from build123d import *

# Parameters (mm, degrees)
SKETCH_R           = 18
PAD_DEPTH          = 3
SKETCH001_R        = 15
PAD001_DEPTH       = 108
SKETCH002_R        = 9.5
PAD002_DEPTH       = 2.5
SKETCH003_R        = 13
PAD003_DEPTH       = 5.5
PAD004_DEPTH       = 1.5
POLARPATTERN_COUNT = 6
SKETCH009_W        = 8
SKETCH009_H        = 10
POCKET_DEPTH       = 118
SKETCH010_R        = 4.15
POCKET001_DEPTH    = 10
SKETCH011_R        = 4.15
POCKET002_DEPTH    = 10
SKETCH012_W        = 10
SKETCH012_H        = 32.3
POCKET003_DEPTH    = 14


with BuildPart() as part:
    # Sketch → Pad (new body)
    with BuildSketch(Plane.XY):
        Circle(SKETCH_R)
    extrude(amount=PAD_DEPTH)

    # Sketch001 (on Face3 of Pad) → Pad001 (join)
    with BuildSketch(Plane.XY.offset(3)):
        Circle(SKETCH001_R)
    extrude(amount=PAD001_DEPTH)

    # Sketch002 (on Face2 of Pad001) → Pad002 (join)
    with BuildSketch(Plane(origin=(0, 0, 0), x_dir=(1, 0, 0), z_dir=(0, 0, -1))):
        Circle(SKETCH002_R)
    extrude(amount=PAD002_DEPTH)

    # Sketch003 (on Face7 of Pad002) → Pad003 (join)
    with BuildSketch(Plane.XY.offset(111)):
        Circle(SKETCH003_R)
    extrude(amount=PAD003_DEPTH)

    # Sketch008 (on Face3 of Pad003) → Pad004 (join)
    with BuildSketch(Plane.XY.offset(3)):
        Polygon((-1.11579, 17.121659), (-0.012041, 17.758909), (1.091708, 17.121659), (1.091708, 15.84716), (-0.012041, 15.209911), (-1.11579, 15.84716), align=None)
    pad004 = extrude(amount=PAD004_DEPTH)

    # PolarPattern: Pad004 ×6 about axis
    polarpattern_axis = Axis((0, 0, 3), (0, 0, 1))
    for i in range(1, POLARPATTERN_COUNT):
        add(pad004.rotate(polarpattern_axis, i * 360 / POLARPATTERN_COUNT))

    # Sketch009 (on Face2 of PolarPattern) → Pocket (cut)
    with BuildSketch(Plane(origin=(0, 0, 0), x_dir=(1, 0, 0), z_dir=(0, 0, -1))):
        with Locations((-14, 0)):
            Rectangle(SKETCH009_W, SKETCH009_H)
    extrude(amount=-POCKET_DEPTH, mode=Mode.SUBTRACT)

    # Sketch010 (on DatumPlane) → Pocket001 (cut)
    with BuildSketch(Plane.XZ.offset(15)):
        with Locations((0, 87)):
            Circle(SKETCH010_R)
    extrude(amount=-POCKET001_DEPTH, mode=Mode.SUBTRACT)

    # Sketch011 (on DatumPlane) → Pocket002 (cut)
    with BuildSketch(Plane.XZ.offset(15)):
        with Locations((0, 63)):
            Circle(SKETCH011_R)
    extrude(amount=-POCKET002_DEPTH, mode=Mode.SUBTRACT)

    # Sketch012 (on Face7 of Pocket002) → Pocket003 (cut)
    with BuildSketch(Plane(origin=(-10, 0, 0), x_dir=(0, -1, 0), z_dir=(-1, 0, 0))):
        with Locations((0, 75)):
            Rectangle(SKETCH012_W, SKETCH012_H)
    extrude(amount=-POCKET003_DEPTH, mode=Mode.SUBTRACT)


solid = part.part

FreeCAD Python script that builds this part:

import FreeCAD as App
import Part
import Sketcher
from FreeCAD import Vector
Q = App.Units.Quantity


def add_polygon(sketch, points):
    """Adds a closed chain of lines whose ends are joined by coincident constraints."""
    first, n = sketch.GeometryCount, len(points)
    for a, b in zip(points, points[1:] + points[:1]):
        sketch.addGeometry(Part.LineSegment(App.Vector(*a, 0), App.Vector(*b, 0)), False)
    for i in range(n):
        sketch.addConstraint(Sketcher.Constraint("Coincident", first + i, 2, first + (i + 1) % n, 1))

doc = App.newDocument("Part")
body = doc.addObject("PartDesign::Body", "Body")

sketch1 = body.newObject("Sketcher::SketchObject", "Sketch")
sketch1.AttachmentSupport = (doc.getObject("XY_Plane"), [""])
sketch1.MapMode = "FlatFace"
sketch1.addGeometry(Part.Circle(Vector(0, 0, 0), Vector(0, 0, 1), 18), False)
sketch1.addConstraint(Sketcher.Constraint("Coincident", 0, 3, -1, 1))
sketch1.addConstraint(Sketcher.Constraint("Diameter", 0, Q("36 mm")))
pad1 = body.newObject("PartDesign::Pad", "Pad")
pad1.Profile = sketch1
pad1.Length = 3

sketch2 = body.newObject("Sketcher::SketchObject", "Sketch001")
sketch2.AttachmentSupport = (doc.getObject("XY_Plane"), [""])
sketch2.MapMode = "FlatFace"
sketch2.AttachmentOffset = App.Placement(Vector(0, 0, 3), App.Rotation())
sketch2.addGeometry(Part.Circle(Vector(0, 0, 0), Vector(0, 0, 1), 15), False)
sketch2.addConstraint(Sketcher.Constraint("Coincident", 0, 3, -1, 1))
sketch2.addConstraint(Sketcher.Constraint("Diameter", 0, Q("30 mm")))
pad2 = body.newObject("PartDesign::Pad", "Pad001")
pad2.Profile = sketch2
pad2.Length = 108

sketch3 = body.newObject("Sketcher::SketchObject", "Sketch002")
sketch3.AttachmentSupport = (doc.getObject("XY_Plane"), [""])
sketch3.MapMode = "FlatFace"
sketch3.addGeometry(Part.Circle(Vector(0, 0, 0), Vector(0, 0, 1), 10), False)
sketch3.addConstraint(Sketcher.Constraint("Coincident", 0, 3, -1, 1))
sketch3.addConstraint(Sketcher.Constraint("Diameter", 0, Q("19 mm")))
pad3 = body.newObject("PartDesign::Pad", "Pad002")
pad3.Profile = sketch3
pad3.Length = 2.5
pad3.Reversed = True

sketch4 = body.newObject("Sketcher::SketchObject", "Sketch003")
sketch4.AttachmentSupport = (doc.getObject("XY_Plane"), [""])
sketch4.MapMode = "FlatFace"
sketch4.AttachmentOffset = App.Placement(Vector(0, 0, 111), App.Rotation())
sketch4.addGeometry(Part.Circle(Vector(0, 0, 0), Vector(0, 0, 1), 13), False)
sketch4.addConstraint(Sketcher.Constraint("Coincident", 0, 3, -1, 1))
sketch4.addConstraint(Sketcher.Constraint("Diameter", 0, Q("26 mm")))
pad4 = body.newObject("PartDesign::Pad", "Pad003")
pad4.Profile = sketch4
pad4.Length = 5.5

sketch5 = body.newObject("Sketcher::SketchObject", "Sketch004")
sketch5.AttachmentSupport = (doc.getObject("XY_Plane"), [""])
sketch5.MapMode = "FlatFace"
sketch5.AttachmentOffset = App.Placement(Vector(0, 0, 3), App.Rotation())
add_polygon(sketch5, [(0, 17.8), (-1.1, 17.1), (-1.1, 15.8), (0, 15.2), (1.1, 15.8), (1.1, 17.1)])
sketch5.addConstraint(Sketcher.Constraint("Vertical", 1))
sketch5.addConstraint(Sketcher.Constraint("Vertical", 4))
sketch5.addConstraint(Sketcher.Constraint("Parallel", 0, 3))
sketch5.addConstraint(Sketcher.Constraint("Parallel", 2, 5))
sketch5.addConstraint(Sketcher.Constraint("Horizontal", 1, 2, 3, 2))
sketch5.addConstraint(Sketcher.Constraint("Horizontal", 0, 2, 4, 2))
sketch5.addConstraint(Sketcher.Constraint("Vertical", 2, 2, 5, 2))
sketch5.addConstraint(Sketcher.Constraint("Angle", 0, Q("-149.999992 deg")))
sketch5.addConstraint(Sketcher.Constraint("DistanceY", 1, 2, 1, 1, Q("1.274499 mm")))
sketch5.addConstraint(Sketcher.Constraint("Distance", 0, Q("1.2745 mm")))
sketch5.addConstraint(Sketcher.Constraint("DistanceX", 0, 2, -1, 1, Q("1.11579 mm")))
sketch5.addConstraint(Sketcher.Constraint("DistanceY", -1, 1, 0, 2, Q("17.121659 mm")))
pad5 = body.newObject("PartDesign::Pad", "Pad004")
pad5.Profile = sketch5
pad5.Length = 1.5
doc.recompute()

polarpattern = body.newObject("PartDesign::PolarPattern", "PolarPattern")
polarpattern.Originals = [pad5]
polarpattern.Axis = (doc.getObject("Z_Axis"), [""])
polarpattern.Angle = 360
polarpattern.Occurrences = 6
body.Tip = polarpattern

sketch6 = body.newObject("Sketcher::SketchObject", "Sketch005")
sketch6.AttachmentSupport = (doc.getObject("XY_Plane"), [""])
sketch6.MapMode = "FlatFace"
add_polygon(sketch6, [(-18, -5), (-18, 5), (-10, 5), (-10, -5)])
sketch6.addConstraint(Sketcher.Constraint("Vertical", 0))
sketch6.addConstraint(Sketcher.Constraint("Horizontal", 1))
sketch6.addConstraint(Sketcher.Constraint("Vertical", 2))
sketch6.addConstraint(Sketcher.Constraint("Horizontal", 3))
sketch6.addConstraint(Sketcher.Constraint("DistanceX", 1, 1, 1, 2, Q("8 mm")))
sketch6.addConstraint(Sketcher.Constraint("DistanceY", 0, 1, 0, 2, Q("10 mm")))
sketch6.addConstraint(Sketcher.Constraint("DistanceX", 0, 2, -1, 1, Q("18 mm")))
sketch6.addConstraint(Sketcher.Constraint("DistanceY", -1, 1, 0, 2, Q("5 mm")))
pocket1 = body.newObject("PartDesign::Pocket", "Pocket")
pocket1.Profile = sketch6
pocket1.Length = 118
pocket1.Reversed = True

sketch7 = body.newObject("Sketcher::SketchObject", "Sketch006")
sketch7.AttachmentSupport = (doc.getObject("XZ_Plane"), [""])
sketch7.MapMode = "FlatFace"
sketch7.AttachmentOffset = App.Placement(Vector(0, 0, 15), App.Rotation())
sketch7.addGeometry(Part.Circle(Vector(0, 87, 0), Vector(0, 0, 1), 4.2), False)
sketch7.addConstraint(Sketcher.Constraint("PointOnObject", 0, 3, -2))
sketch7.addConstraint(Sketcher.Constraint("Diameter", 0, Q("8.3 mm")))
sketch7.addConstraint(Sketcher.Constraint("DistanceY", -1, 1, 0, 3, Q("87 mm")))
pocket2 = body.newObject("PartDesign::Pocket", "Pocket001")
pocket2.Profile = sketch7
pocket2.Length = 10

sketch8 = body.newObject("Sketcher::SketchObject", "Sketch007")
sketch8.AttachmentSupport = (doc.getObject("XZ_Plane"), [""])
sketch8.MapMode = "FlatFace"
sketch8.AttachmentOffset = App.Placement(Vector(0, 0, 15), App.Rotation())
sketch8.addGeometry(Part.Circle(Vector(0, 63, 0), Vector(0, 0, 1), 4.2), False)
sketch8.addConstraint(Sketcher.Constraint("PointOnObject", 0, 3, -2))
sketch8.addConstraint(Sketcher.Constraint("Diameter", 0, Q("8.3 mm")))
sketch8.addConstraint(Sketcher.Constraint("DistanceY", -1, 1, 0, 3, Q("63 mm")))
pocket3 = body.newObject("PartDesign::Pocket", "Pocket002")
pocket3.Profile = sketch8
pocket3.Length = 10

sketch9 = body.newObject("Sketcher::SketchObject", "Sketch008")
sketch9.AttachmentSupport = (doc.getObject("YZ_Plane"), [""])
sketch9.MapMode = "FlatFace"
sketch9.AttachmentOffset = App.Placement(Vector(0, 0, -10), App.Rotation())
add_polygon(sketch9, [(5, 91), (5, 59), (-5, 59), (-5, 91)])
sketch9.addConstraint(Sketcher.Constraint("Vertical", 0))
sketch9.addConstraint(Sketcher.Constraint("Horizontal", 1))
sketch9.addConstraint(Sketcher.Constraint("Vertical", 2))
sketch9.addConstraint(Sketcher.Constraint("Horizontal", 3))
sketch9.addConstraint(Sketcher.Constraint("DistanceX", 1, 2, 1, 1, Q("10 mm")))
sketch9.addConstraint(Sketcher.Constraint("DistanceY", 0, 2, 0, 1, Q("32.3 mm")))
sketch9.addConstraint(Sketcher.Constraint("DistanceX", -1, 1, 0, 2, Q("5 mm")))
sketch9.addConstraint(Sketcher.Constraint("DistanceY", -1, 1, 0, 2, Q("58.85 mm")))
pocket4 = body.newObject("PartDesign::Pocket", "Pocket003")
pocket4.Profile = sketch9
pocket4.Length = 14
pocket4.Reversed = True

doc.recompute()
